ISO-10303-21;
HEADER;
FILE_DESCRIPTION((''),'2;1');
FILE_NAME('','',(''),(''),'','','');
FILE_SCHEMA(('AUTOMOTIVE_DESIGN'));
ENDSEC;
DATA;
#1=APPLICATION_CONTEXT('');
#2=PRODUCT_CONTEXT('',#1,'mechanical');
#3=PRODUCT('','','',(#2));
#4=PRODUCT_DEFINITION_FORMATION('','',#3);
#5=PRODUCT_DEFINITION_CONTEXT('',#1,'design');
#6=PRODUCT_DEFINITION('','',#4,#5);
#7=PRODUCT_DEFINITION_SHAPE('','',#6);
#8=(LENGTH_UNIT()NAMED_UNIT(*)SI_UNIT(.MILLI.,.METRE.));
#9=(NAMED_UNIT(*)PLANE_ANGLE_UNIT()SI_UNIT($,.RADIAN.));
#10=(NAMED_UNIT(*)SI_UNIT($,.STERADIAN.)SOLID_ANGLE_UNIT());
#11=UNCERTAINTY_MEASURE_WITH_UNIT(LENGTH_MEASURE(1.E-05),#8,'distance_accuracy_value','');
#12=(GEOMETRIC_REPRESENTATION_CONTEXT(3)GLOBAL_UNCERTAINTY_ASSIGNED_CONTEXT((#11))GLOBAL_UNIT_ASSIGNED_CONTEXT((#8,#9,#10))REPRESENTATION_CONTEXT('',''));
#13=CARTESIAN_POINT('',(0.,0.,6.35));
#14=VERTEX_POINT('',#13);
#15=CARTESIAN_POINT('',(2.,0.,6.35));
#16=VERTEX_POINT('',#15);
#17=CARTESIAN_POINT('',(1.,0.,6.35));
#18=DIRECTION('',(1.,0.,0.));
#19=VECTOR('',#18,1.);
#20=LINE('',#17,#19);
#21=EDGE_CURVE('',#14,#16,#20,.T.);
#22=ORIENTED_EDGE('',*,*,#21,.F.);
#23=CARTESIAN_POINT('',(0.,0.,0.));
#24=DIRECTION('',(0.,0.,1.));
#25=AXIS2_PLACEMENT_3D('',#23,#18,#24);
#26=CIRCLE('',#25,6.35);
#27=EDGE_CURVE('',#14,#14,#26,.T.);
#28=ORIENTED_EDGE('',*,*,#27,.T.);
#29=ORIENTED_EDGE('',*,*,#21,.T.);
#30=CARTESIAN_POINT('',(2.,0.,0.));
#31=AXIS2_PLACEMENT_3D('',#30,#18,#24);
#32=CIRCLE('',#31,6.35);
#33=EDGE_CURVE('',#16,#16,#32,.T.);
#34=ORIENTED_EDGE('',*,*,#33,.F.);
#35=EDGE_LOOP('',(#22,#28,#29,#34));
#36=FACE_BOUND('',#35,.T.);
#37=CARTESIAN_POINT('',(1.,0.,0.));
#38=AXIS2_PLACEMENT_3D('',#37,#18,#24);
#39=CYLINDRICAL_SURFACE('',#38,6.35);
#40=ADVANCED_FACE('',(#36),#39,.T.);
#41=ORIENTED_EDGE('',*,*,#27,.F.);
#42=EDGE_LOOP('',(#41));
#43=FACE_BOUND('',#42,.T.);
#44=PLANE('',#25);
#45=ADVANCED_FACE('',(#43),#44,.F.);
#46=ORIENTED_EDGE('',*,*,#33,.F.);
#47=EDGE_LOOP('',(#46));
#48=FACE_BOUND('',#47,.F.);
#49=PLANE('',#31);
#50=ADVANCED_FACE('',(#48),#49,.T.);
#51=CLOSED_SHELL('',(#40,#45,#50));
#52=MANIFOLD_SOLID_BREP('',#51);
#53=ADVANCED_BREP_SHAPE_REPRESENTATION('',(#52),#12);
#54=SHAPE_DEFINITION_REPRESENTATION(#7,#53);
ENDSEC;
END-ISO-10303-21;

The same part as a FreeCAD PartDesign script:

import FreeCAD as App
import Part
import Sketcher


def add_polygon(sketch, points):
    """Adds a closed chain of lines whose ends are joined by coincident constraints."""
    first, n = sketch.GeometryCount, len(points)
    for a, b in zip(points, points[1:] + points[:1]):
        sketch.addGeometry(Part.LineSegment(App.Vector(*a, 0), App.Vector(*b, 0)), False)
    for i in range(n):
        sketch.addConstraint(Sketcher.Constraint("Coincident", first + i, 2, first + (i + 1) % n, 1))

doc = App.newDocument("Part")
body = doc.addObject("PartDesign::Body", "Body")

# Sketch on XY plane
sketch1 = body.newObject("Sketcher::SketchObject", "Sketch")
sketch1.AttachmentSupport = (doc.getObject("XY_Plane"), [""])
sketch1.MapMode = "FlatFace"
add_polygon(sketch1, [(0, 6.3), (0, 0), (2, 0), (2, 6.3)])  # lines 0-3
sketch1.addConstraint([
    Sketcher.Constraint("Vertical", 0),
    Sketcher.Constraint("Horizontal", 1),
    Sketcher.Constraint("Vertical", 2),
    Sketcher.Constraint("Horizontal", 3),
    Sketcher.Constraint("Coincident", 0, 2, -1, 1),
    Sketcher.Constraint("DistanceX", 1, 1, 1, 2, 2.0),
    Sketcher.Constraint("DistanceY", 0, 2, 0, 1, 6.35),
])
revolution = body.newObject("PartDesign::Revolution", "Revolution")
revolution.Profile = sketch1
revolution.ReferenceAxis = (sketch1, ["H_Axis"])
revolution.Angle = 360

doc.recompute()
